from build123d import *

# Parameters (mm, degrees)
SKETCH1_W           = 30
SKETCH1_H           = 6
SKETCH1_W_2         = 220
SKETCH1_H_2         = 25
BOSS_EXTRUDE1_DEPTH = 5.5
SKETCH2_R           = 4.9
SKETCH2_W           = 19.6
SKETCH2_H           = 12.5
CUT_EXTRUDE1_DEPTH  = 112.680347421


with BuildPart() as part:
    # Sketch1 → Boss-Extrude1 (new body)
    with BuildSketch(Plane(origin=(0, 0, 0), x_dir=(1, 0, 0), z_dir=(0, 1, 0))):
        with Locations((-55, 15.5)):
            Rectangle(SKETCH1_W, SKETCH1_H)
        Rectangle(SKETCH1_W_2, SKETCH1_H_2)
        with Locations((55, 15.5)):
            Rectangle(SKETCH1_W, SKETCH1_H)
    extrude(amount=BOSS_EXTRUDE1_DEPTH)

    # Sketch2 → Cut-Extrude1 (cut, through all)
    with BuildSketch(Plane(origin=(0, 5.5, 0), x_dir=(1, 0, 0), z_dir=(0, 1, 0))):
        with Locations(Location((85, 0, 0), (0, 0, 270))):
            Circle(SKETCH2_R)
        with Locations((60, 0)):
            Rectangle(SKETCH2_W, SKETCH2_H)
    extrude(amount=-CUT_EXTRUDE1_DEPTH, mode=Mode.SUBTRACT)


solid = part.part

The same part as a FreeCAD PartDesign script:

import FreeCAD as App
import Part
import Sketcher

V = App.Vector

doc = App.newDocument("Part")
body = doc.addObject("PartDesign::Body", "Body")

# Sketch on XZ plane
sketch1 = body.newObject("Sketcher::SketchObject", "Sketch")
sketch1.AttachmentSupport = (doc.getObject("XZ_Plane"), [""])
sketch1.MapMode = "FlatFace"
sketch1.addGeometry([
    Part.LineSegment(V(-70, -18, 0), V(-70, -12, 0)),  # 0
    Part.LineSegment(V(-70, -12, 0), V(-110, -12, 0)),  # 1
    Part.LineSegment(V(-110, -12, 0), V(-110, 12, 0)),  # 2
    Part.LineSegment(V(-110, 12, 0), V(110, 12, 0)),  # 3
    Part.LineSegment(V(110, 12, 0), V(110, -12, 0)),  # 4
    Part.LineSegment(V(110, -12, 0), V(70, -12, 0)),  # 5
    Part.LineSegment(V(70, -12, 0), V(70, -18, 0)),  # 6
    Part.LineSegment(V(70, -18, 0), V(40, -18, 0)),  # 7
    Part.LineSegment(V(40, -18, 0), V(40, -12, 0)),  # 8
    Part.LineSegment(V(40, -12, 0), V(-40, -12, 0)),  # 9
    Part.LineSegment(V(-40, -12, 0), V(-40, -18, 0)),  # 10
    Part.LineSegment(V(-40, -18, 0), V(-70, -18, 0)),  # 11
], False)
sketch1.addConstraint([
    Sketcher.Constraint("Coincident", 0, 2, 1, 1),
    Sketcher.Constraint("Coincident", 1, 2, 2, 1),
    Sketcher.Constraint("Coincident", 2, 2, 3, 1),
    Sketcher.Constraint("Coincident", 3, 2, 4, 1),
    Sketcher.Constraint("Coincident", 4, 2, 5, 1),
    Sketcher.Constraint("Coincident", 5, 2, 6, 1),
    Sketcher.Constraint("Coincident", 6, 2, 7, 1),
    Sketcher.Constraint("Coincident", 7, 2, 8, 1),
    Sketcher.Constraint("Coincident", 8, 2, 9, 1),
    Sketcher.Constraint("Coincident", 9, 2, 10, 1),
    Sketcher.Constraint("Coincident", 10, 2, 11, 1),
    Sketcher.Constraint("Coincident", 11, 2, 0, 1),
    Sketcher.Constraint("Vertical", 0),
    Sketcher.Constraint("Horizontal", 1),
    Sketcher.Constraint("Vertical", 2),
    Sketcher.Constraint("Horizontal", 3),
    Sketcher.Constraint("Vertical", 4),
    Sketcher.Constraint("Horizontal", 5),
    Sketcher.Constraint("Vertical", 6),
    Sketcher.Constraint("Horizontal", 7),
    Sketcher.Constraint("Vertical", 8),
    Sketcher.Constraint("Horizontal", 9),
    Sketcher.Constraint("Vertical", 10),
    Sketcher.Constraint("Horizontal", 11),
    Sketcher.Constraint("Symmetric", 1, 2, 3, 2, -1, 1),
    Sketcher.Constraint("Symmetric", 0, 2, 5, 2, -2),
    Sketcher.Constraint("Symmetric", 7, 2, 10, 2, -2),
    Sketcher.Constraint("Horizontal", 5, 2, 8, 2),
    Sketcher.Constraint("DistanceX", 1, 2, 1, 1, 40.0),
    Sketcher.Constraint("DistanceX", 3, 1, 3, 2, 220.0),
    Sketcher.Constraint("DistanceX", 7, 2, 7, 1, 30.0),
    Sketcher.Constraint("DistanceY", 0, 1, 0, 2, 6.0),
    Sketcher.Constraint("DistanceY", 2, 1, 2, 2, 25.0),
])
pad1 = body.newObject("PartDesign::Pad", "Pad")
pad1.Profile = sketch1
pad1.Length = 5.5
pad1.Reversed = True

# Sketch on XZ plane
sketch2 = body.newObject("Sketcher::SketchObject", "Sketch001")
sketch2.AttachmentSupport = (doc.getObject("XZ_Plane"), [""])
sketch2.MapMode = "FlatFace"
sketch2.AttachmentOffset = App.Placement(V(0, 0, -5.5), App.Rotation())
sketch2.addGeometry([
    Part.Circle(V(85, 0, 0), V(0, 0, 1), 4.9),  # 0
    Part.LineSegment(V(50.2, -6.2, 0), V(50.2, 6.2, 0)),  # 1
    Part.LineSegment(V(50.2, 6.2, 0), V(69.8, 6.2, 0)),  # 2
    Part.LineSegment(V(69.8, 6.2, 0), V(69.8, -6.2, 0)),  # 3
    Part.LineSegment(V(69.8, -6.2, 0), V(50.2, -6.2, 0)),  # 4
], False)
sketch2.addConstraint([
    Sketcher.Constraint("Coincident", 1, 2, 2, 1),
    Sketcher.Constraint("Coincident", 2, 2, 3, 1),
    Sketcher.Constraint("Coincident", 3, 2, 4, 1),
    Sketcher.Constraint("Coincident", 4, 2, 1, 1),
    Sketcher.Constraint("Vertical", 1),
    Sketcher.Constraint("Horizontal", 2),
    Sketcher.Constraint("Vertical", 3),
    Sketcher.Constraint("Horizontal", 4),
    Sketcher.Constraint("PointOnObject", 0, 3, -1),
    Sketcher.Constraint("Diameter", 0, 9.8),
    Sketcher.Constraint("DistanceX", 2, 1, 2, 2, 19.6),
    Sketcher.Constraint("DistanceY", 1, 1, 1, 2, 12.5),
    Sketcher.Constraint("DistanceX", -1, 1, 0, 3, 85.0),
    Sketcher.Constraint("DistanceX", -1, 1, 1, 2, 50.2),
    Sketcher.Constraint("DistanceY", -1, 1, 1, 2, 6.25),
])
pocket1 = body.newObject("PartDesign::Pocket", "Pocket")
pocket1.Profile = sketch2
pocket1.Type = "ThroughAll"
pocket1.Reversed = True

doc.recompute()
